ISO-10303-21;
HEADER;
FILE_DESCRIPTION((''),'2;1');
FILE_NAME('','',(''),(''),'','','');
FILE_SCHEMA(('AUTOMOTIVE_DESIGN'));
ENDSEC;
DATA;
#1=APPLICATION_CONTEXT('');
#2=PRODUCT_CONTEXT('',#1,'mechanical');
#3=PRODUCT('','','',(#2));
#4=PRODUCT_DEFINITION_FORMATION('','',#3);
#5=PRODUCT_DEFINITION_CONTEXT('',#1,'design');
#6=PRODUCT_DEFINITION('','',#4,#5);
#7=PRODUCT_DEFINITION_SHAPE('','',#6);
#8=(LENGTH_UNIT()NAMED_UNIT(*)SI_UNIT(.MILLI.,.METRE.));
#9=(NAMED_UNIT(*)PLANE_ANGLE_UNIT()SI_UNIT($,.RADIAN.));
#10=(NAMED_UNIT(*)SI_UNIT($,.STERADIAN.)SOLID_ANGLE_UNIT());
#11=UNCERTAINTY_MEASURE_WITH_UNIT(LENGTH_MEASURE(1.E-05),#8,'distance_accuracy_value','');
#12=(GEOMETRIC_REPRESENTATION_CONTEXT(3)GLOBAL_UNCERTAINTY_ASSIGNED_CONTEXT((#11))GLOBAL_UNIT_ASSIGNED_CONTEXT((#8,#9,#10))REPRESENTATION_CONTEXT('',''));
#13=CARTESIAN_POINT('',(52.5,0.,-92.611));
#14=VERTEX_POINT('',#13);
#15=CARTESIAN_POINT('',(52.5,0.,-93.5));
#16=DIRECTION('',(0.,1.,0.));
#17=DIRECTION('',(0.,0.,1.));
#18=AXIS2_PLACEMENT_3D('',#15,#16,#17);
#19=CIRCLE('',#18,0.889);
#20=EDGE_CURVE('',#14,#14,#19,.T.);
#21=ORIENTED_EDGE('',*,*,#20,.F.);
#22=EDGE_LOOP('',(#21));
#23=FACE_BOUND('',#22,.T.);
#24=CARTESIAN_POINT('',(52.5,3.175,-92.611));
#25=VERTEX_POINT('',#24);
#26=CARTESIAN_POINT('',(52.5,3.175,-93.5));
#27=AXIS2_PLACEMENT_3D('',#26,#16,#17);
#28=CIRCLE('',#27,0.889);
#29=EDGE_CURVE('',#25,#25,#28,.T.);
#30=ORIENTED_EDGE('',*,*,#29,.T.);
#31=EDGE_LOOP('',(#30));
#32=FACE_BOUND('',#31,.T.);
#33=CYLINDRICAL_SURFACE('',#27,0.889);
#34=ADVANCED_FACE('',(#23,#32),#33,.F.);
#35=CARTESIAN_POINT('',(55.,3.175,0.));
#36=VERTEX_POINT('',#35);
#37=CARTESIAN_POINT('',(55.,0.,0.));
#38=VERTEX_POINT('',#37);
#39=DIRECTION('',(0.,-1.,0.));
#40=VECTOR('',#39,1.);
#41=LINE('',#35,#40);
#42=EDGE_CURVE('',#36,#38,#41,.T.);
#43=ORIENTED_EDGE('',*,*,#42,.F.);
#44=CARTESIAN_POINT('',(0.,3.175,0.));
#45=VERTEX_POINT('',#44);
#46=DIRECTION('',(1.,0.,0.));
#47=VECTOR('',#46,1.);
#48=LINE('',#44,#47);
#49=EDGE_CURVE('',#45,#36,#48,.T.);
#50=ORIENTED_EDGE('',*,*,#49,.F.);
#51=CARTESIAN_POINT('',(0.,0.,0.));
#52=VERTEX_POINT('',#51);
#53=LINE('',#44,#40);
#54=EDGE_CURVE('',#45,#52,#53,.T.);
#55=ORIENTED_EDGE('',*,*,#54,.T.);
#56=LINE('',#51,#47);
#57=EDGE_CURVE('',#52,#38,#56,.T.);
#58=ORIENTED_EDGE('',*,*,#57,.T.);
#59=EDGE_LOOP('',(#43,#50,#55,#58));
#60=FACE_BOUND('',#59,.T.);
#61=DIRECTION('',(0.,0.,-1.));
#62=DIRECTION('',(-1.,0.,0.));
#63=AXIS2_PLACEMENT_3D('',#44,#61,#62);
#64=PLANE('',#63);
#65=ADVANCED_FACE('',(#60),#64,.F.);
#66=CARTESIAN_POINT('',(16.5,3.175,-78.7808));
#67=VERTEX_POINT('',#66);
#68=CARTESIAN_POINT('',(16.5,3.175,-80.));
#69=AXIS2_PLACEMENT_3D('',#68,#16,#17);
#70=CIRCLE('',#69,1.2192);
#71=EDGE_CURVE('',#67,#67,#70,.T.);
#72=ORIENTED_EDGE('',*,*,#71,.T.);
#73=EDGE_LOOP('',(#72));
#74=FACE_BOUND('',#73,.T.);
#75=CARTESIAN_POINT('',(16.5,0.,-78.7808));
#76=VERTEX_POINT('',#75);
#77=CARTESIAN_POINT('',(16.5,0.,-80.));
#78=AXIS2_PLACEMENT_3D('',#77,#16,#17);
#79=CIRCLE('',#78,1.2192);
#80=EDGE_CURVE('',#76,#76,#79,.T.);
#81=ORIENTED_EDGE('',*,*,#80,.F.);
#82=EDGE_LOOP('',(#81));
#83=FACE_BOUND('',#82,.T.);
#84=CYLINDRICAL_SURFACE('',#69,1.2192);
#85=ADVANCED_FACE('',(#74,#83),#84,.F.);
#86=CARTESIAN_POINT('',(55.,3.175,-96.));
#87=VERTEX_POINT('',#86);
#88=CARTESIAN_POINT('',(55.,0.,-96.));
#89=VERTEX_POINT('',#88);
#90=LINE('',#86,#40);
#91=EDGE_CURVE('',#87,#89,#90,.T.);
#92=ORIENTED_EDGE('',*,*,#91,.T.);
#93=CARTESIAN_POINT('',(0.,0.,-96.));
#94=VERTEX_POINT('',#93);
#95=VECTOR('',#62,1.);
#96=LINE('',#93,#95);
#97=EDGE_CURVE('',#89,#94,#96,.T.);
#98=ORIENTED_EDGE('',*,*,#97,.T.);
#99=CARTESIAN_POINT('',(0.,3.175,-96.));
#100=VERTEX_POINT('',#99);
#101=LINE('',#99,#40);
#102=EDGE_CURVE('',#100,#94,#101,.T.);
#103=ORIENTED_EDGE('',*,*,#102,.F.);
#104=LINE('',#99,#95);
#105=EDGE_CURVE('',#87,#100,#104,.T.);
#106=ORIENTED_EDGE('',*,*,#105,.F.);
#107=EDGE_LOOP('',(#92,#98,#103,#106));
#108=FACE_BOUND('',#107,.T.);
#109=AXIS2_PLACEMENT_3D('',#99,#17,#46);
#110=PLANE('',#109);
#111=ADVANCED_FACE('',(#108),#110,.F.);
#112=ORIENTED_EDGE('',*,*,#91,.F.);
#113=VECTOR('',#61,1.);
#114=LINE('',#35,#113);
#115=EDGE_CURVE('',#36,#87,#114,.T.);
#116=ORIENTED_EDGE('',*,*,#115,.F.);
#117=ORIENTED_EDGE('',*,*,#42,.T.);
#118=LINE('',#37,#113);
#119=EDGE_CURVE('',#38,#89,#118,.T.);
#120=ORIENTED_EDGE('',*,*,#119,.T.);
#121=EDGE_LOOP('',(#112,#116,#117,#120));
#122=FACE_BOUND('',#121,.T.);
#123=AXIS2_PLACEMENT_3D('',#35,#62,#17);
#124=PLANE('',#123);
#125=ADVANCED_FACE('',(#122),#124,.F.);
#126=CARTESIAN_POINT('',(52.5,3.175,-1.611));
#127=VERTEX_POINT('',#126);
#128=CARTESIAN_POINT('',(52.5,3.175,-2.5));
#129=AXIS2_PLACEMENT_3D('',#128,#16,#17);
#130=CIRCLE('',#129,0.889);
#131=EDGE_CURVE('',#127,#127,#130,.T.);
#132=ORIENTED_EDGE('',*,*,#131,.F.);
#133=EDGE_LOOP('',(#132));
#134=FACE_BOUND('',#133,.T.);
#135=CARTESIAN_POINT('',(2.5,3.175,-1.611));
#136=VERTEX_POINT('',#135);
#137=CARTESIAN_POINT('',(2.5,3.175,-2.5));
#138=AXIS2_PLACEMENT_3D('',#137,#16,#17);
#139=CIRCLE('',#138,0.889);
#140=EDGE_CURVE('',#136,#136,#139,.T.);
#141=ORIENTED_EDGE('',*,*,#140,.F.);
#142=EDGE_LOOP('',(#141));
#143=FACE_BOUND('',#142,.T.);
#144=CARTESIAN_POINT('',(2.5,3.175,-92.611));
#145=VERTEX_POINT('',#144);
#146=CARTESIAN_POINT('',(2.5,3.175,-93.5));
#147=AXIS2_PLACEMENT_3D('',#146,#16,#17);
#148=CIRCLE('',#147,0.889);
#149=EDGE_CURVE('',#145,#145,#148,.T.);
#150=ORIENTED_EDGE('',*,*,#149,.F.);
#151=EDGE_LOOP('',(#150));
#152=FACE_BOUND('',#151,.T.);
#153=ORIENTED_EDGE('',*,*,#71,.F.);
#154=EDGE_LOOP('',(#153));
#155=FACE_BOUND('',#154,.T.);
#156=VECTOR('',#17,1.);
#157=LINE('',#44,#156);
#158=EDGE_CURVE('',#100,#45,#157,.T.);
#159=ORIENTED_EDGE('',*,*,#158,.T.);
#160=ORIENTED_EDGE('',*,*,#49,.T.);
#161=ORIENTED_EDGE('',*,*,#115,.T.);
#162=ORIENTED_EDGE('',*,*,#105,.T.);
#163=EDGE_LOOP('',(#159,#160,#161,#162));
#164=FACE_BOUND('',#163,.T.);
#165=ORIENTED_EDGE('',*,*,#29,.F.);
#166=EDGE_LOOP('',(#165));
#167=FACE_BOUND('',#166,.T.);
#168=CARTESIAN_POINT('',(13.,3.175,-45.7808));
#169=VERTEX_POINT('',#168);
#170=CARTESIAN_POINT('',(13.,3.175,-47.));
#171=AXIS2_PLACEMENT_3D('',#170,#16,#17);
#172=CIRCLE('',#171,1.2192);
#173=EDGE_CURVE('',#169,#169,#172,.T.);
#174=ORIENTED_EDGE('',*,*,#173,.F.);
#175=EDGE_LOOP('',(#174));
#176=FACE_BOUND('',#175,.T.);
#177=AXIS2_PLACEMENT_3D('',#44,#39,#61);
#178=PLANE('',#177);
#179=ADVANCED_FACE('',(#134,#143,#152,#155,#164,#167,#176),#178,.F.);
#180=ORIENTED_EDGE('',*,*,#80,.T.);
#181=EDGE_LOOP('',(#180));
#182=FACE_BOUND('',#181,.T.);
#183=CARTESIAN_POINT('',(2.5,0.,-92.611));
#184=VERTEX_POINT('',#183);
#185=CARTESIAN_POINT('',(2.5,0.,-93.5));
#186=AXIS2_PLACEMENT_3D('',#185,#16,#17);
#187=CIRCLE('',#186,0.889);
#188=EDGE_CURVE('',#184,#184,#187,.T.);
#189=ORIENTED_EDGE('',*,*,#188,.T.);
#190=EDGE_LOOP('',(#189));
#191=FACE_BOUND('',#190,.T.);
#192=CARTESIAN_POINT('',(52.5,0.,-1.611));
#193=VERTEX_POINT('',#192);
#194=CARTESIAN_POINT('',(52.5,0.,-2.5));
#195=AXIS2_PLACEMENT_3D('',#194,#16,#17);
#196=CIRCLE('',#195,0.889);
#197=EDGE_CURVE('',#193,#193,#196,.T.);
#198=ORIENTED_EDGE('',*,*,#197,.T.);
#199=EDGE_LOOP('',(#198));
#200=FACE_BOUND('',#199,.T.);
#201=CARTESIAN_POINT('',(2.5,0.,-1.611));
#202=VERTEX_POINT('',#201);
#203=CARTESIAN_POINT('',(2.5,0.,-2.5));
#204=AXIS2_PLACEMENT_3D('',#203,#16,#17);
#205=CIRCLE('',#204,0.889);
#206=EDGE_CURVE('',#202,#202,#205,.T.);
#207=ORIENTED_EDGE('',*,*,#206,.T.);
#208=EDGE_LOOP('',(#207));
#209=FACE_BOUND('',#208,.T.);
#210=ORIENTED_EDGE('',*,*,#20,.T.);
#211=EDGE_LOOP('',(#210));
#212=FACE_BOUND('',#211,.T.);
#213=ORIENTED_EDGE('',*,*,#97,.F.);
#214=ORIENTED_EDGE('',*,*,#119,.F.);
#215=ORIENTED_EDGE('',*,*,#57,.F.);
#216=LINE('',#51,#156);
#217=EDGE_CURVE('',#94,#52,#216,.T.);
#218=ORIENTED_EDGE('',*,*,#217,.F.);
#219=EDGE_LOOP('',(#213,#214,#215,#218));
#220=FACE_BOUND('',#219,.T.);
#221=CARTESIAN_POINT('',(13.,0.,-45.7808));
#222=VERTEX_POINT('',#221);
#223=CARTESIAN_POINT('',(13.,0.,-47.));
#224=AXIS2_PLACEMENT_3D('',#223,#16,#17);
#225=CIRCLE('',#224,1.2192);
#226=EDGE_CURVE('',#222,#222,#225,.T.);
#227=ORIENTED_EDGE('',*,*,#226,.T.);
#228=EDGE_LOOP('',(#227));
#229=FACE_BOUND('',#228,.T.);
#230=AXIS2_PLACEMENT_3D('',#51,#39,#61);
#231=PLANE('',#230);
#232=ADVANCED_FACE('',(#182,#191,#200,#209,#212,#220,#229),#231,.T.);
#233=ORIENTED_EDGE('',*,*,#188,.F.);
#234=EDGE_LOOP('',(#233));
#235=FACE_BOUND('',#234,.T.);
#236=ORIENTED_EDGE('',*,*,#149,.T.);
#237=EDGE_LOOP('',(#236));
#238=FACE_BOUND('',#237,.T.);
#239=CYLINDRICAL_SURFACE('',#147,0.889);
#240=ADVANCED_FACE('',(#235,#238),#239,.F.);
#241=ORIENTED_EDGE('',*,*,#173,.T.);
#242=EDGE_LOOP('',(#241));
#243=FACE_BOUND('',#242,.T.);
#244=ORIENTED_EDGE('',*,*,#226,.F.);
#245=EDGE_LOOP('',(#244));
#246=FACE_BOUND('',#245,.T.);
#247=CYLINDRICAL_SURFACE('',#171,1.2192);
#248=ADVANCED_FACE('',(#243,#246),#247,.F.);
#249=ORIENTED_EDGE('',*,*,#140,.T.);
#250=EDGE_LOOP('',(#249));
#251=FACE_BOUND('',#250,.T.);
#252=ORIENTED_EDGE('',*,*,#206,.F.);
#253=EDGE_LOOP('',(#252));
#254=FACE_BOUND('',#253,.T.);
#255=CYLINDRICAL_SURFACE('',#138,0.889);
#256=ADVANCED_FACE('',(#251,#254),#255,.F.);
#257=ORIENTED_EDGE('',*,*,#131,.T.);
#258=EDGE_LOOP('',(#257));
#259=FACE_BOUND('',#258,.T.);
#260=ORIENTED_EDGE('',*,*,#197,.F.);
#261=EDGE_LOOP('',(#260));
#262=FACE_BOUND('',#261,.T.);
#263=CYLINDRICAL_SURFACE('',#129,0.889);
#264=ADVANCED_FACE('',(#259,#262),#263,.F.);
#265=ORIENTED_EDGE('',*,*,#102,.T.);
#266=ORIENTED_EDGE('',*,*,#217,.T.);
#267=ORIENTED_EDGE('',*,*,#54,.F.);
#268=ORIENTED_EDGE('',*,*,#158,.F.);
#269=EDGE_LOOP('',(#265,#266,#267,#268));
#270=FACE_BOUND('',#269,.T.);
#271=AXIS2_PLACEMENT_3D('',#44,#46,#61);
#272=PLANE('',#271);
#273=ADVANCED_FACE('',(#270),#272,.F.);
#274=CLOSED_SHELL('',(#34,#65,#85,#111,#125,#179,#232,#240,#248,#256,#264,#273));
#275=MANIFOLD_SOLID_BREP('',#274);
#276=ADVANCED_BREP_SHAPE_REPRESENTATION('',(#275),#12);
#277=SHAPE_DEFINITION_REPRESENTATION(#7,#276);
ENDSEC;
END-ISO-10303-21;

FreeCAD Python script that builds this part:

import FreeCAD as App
import Part
import Sketcher

V = App.Vector
Q = App.Units.Quantity


def add_polygon(sketch, points):
    """Adds a closed chain of lines whose ends are joined by coincident constraints."""
    first, n = sketch.GeometryCount, len(points)
    for a, b in zip(points, points[1:] + points[:1]):
        sketch.addGeometry(Part.LineSegment(App.Vector(*a, 0), App.Vector(*b, 0)), False)
    for i in range(n):
        sketch.addConstraint(Sketcher.Constraint("Coincident", first + i, 2, first + (i + 1) % n, 1))

doc = App.newDocument("Part")
body = doc.addObject("PartDesign::Body", "Body")

# Sketch on XZ plane
sketch1 = body.newObject("Sketcher::SketchObject", "Sketch")
sketch1.AttachmentSupport = (doc.getObject("XZ_Plane"), [""])
sketch1.MapMode = "FlatFace"
add_polygon(sketch1, [(0, -96), (0, 0), (55, 0), (55, -96)])  # lines 0-3
sketch1.addConstraint([
    Sketcher.Constraint("Vertical", 0),
    Sketcher.Constraint("Horizontal", 1),
    Sketcher.Constraint("Vertical", 2),
    Sketcher.Constraint("Horizontal", 3),
    Sketcher.Constraint("Coincident", 0, 2, -1, 1),
    Sketcher.Constraint("DistanceX", 1, 1, 1, 2, 55.0),
    Sketcher.Constraint("DistanceY", 0, 1, 0, 2, 96.0),
])
pad1 = body.newObject("PartDesign::Pad", "Pad")
pad1.Profile = sketch1
pad1.Length = Q("0.125 in")
pad1.Reversed = True

# Sketch on XZ plane
sketch2 = body.newObject("Sketcher::SketchObject", "Sketch001")
sketch2.AttachmentSupport = (doc.getObject("XZ_Plane"), [""])
sketch2.MapMode = "FlatFace"
sketch2.AttachmentOffset = App.Placement(V(0, 0, -0.125 * 25.4), App.Rotation())
sketch2.addGeometry([
    Part.Circle(V(16.5, -80, 0), V(0, 0, 1), 1.2192),
    Part.Circle(V(13, -47, 0), V(0, 0, 1), 1.2192),
], False)
sketch2.addConstraint([
    Sketcher.Constraint("Equal", 0, 1),
    Sketcher.Constraint("Diameter", 0, Q("0.096 in")),
    Sketcher.Constraint("DistanceX", -1, 1, 0, 3, 16.5),
    Sketcher.Constraint("DistanceY", 0, 3, -1, 1, 80.0),
    Sketcher.Constraint("DistanceX", -1, 1, 1, 3, 13.0),
    Sketcher.Constraint("DistanceY", 1, 3, -1, 1, 47.0),
])
doc.recompute()
hole = body.newObject("PartDesign::Hole", "Hole")
hole.Profile = sketch2
hole.ThreadType = "None"
hole.Diameter = Q("0.096 in")
hole.DepthType = "ThroughAll"
hole.Reversed = True

# Sketch on XZ plane
sketch3 = body.newObject("Sketcher::SketchObject", "Sketch002")
sketch3.AttachmentSupport = (doc.getObject("XZ_Plane"), [""])
sketch3.MapMode = "FlatFace"
sketch3.AttachmentOffset = App.Placement(V(0, 0, -0.125 * 25.4), App.Rotation())
sketch3.addGeometry([
    Part.Circle(V(2.5, -2.5, 0), V(0, 0, 1), 0.889),
    Part.Circle(V(52.5, -2.5, 0), V(0, 0, 1), 0.889),
    Part.Circle(V(52.5, -93.5, 0), V(0, 0, 1), 0.889),
    Part.Circle(V(2.5, -93.5, 0), V(0, 0, 1), 0.889),
], False)
sketch3.addConstraint([
    Sketcher.Constraint("Equal", 0, 1),
    Sketcher.Constraint("Equal", 1, 2),
    Sketcher.Constraint("Equal", 2, 3),
    Sketcher.Constraint("Horizontal", 0, 3, 1, 3),
    Sketcher.Constraint("Horizontal", 2, 3, 3, 3),
    Sketcher.Constraint("Vertical", 1, 3, 2, 3),
    Sketcher.Constraint("Vertical", 0, 3, 3, 3),
    Sketcher.Constraint("Diameter", 0, Q("0.07 in")),
    Sketcher.Constraint("DistanceX", -1, 1, 0, 3, 2.5),
    Sketcher.Constraint("DistanceY", 0, 3, -1, 1, 2.5),
    Sketcher.Constraint("DistanceX", -1, 1, 1, 3, 52.5),
    Sketcher.Constraint("DistanceY", 2, 3, -1, 1, 93.5),
])
doc.recompute()
hole2 = body.newObject("PartDesign::Hole", "Hole001")
hole2.Profile = sketch3
hole2.ThreadType = "None"
hole2.Diameter = Q("0.07 in")
hole2.DepthType = "ThroughAll"
hole2.Reversed = True

doc.recompute()
